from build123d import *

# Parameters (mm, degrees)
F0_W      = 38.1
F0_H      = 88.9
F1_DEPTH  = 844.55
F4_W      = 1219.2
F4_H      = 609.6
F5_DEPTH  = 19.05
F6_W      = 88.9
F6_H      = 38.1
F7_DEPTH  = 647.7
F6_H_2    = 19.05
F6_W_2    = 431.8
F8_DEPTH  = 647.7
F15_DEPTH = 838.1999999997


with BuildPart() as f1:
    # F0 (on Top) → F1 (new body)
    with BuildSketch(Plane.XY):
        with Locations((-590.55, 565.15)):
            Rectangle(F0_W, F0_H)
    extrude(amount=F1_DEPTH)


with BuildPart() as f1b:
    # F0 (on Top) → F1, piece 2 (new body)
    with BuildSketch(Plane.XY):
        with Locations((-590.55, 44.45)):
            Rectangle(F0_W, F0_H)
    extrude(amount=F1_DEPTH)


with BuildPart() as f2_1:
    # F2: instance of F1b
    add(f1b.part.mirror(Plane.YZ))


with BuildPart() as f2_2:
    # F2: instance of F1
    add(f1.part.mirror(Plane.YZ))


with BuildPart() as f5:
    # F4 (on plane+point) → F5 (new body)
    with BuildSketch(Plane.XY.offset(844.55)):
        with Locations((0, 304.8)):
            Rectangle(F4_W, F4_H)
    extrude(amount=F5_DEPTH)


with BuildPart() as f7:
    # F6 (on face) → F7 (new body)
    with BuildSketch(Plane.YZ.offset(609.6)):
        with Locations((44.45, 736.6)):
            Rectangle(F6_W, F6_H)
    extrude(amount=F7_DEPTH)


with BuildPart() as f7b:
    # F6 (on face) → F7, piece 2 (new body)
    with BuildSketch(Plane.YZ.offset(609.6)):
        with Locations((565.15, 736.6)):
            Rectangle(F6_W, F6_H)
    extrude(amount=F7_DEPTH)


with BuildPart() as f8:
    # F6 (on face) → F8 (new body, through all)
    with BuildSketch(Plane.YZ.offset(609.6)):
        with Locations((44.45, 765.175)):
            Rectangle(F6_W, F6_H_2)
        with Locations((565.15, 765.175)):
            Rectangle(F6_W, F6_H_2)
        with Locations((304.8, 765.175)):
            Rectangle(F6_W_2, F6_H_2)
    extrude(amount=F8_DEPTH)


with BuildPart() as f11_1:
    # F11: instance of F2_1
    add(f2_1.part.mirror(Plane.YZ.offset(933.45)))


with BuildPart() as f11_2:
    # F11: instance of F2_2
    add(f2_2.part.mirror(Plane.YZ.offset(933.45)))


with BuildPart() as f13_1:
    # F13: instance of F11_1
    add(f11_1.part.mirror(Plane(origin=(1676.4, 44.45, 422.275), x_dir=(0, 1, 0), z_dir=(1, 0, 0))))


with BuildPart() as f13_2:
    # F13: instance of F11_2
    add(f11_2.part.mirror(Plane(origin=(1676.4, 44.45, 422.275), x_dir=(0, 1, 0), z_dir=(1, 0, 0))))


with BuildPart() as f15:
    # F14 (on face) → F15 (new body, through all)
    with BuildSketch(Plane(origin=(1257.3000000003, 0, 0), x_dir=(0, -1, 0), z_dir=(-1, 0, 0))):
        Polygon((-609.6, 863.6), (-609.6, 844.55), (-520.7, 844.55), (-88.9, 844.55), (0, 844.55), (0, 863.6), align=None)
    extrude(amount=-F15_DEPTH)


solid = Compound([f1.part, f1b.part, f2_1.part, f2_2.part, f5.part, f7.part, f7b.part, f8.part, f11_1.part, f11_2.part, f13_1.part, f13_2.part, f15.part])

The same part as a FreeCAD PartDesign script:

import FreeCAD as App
import Part
import Sketcher
from FreeCAD import Vector
Q = App.Units.Quantity

doc = App.newDocument("Part")
body = doc.addObject("PartDesign::Body", "Body")

sketch1 = body.newObject("Sketcher::SketchObject", "Sketch")
sketch1.AttachmentSupport = (doc.getObject("XY_Plane"), [""])
sketch1.MapMode = "FlatFace"
sketch1.addGeometry(Part.LineSegment(Vector(-610, 610, 0), Vector(-610, 521, 0)), False)
sketch1.addGeometry(Part.LineSegment(Vector(-610, 521, 0), Vector(-572, 521, 0)), False)
sketch1.addGeometry(Part.LineSegment(Vector(-572, 521, 0), Vector(-572, 610, 0)), False)
sketch1.addGeometry(Part.LineSegment(Vector(-572, 610, 0), Vector(-610, 610, 0)), False)
sketch1.addConstraint(Sketcher.Constraint("Coincident", 0, 2, 1, 1))
sketch1.addConstraint(Sketcher.Constraint("Coincident", 1, 2, 2, 1))
sketch1.addConstraint(Sketcher.Constraint("Coincident", 2, 2, 3, 1))
sketch1.addConstraint(Sketcher.Constraint("Coincident", 3, 2, 0, 1))
sketch1.addConstraint(Sketcher.Constraint("Vertical", 0))
sketch1.addConstraint(Sketcher.Constraint("Horizontal", 1))
sketch1.addConstraint(Sketcher.Constraint("Vertical", 2))
sketch1.addConstraint(Sketcher.Constraint("Horizontal", 3))
sketch1.addConstraint(Sketcher.Constraint("DistanceX", 1, 1, 1, 2, Q("1.5 in")))
sketch1.addConstraint(Sketcher.Constraint("DistanceY", 0, 2, 0, 1, Q("3.5 in")))
sketch1.addConstraint(Sketcher.Constraint("DistanceX", 0, 2, -1, 1, Q("24 in")))
sketch1.addConstraint(Sketcher.Constraint("DistanceY", -1, 1, 2, 2, Q("24 in")))
pad1 = body.newObject("PartDesign::Pad", "Pad")
pad1.Profile = sketch1
pad1.Length = Q("33.25 in")
body2 = doc.addObject("PartDesign::Body", "Body001")

sketch2 = body2.newObject("Sketcher::SketchObject", "Sketch001")
sketch2.AttachmentSupport = (doc.getObject("XY_Plane001"), [""])
sketch2.MapMode = "FlatFace"
sketch2.addGeometry(Part.LineSegment(Vector(-610, 89, 0), Vector(-610, 0, 0)), False)
sketch2.addGeometry(Part.LineSegment(Vector(-610, 0, 0), Vector(-572, 0, 0)), False)
sketch2.addGeometry(Part.LineSegment(Vector(-572, 0, 0), Vector(-572, 89, 0)), False)
sketch2.addGeometry(Part.LineSegment(Vector(-572, 89, 0), Vector(-610, 89, 0)), False)
sketch2.addConstraint(Sketcher.Constraint("Coincident", 0, 2, 1, 1))
sketch2.addConstraint(Sketcher.Constraint("Coincident", 1, 2, 2, 1))
sketch2.addConstraint(Sketcher.Constraint("Coincident", 2, 2, 3, 1))
sketch2.addConstraint(Sketcher.Constraint("Coincident", 3, 2, 0, 1))
sketch2.addConstraint(Sketcher.Constraint("Vertical", 0))
sketch2.addConstraint(Sketcher.Constraint("Horizontal", 1))
sketch2.addConstraint(Sketcher.Constraint("Vertical", 2))
sketch2.addConstraint(Sketcher.Constraint("Horizontal", 3))
sketch2.addConstraint(Sketcher.Constraint("PointOnObject", 0, 2, -1))
sketch2.addConstraint(Sketcher.Constraint("DistanceX", 1, 1, 1, 2, Q("1.5 in")))
sketch2.addConstraint(Sketcher.Constraint("DistanceY", 0, 2, 0, 1, Q("3.5 in")))
sketch2.addConstraint(Sketcher.Constraint("DistanceX", 0, 2, -1, 1, Q("24 in")))
pad2 = body2.newObject("PartDesign::Pad", "Pad001")
pad2.Profile = sketch2
pad2.Length = Q("33.25 in")
body3 = doc.addObject("PartDesign::Body", "Body002")
doc.recompute()

mirroring = doc.addObject("Part::Mirroring", "Mirroring")
mirroring.Source = body2
mirroring.Base = Vector(0, 0, 0)
mirroring.Normal = Vector(1, 0, 0)
body3.BaseFeature = mirroring
doc.recompute()
body4 = doc.addObject("PartDesign::Body", "Body003")
doc.recompute()

mirroring2 = doc.addObject("Part::Mirroring", "Mirroring001")
mirroring2.Source = body
mirroring2.Base = Vector(0, 0, 0)
mirroring2.Normal = Vector(1, 0, 0)
body4.BaseFeature = mirroring2
doc.recompute()
body5 = doc.addObject("PartDesign::Body", "Body004")

sketch3 = body5.newObject("Sketcher::SketchObject", "Sketch002")
sketch3.AttachmentSupport = (doc.getObject("XY_Plane004"), [""])
sketch3.MapMode = "FlatFace"
sketch3.AttachmentOffset = App.Placement(Vector(0, 0, 33.25 * 25.4), App.Rotation())
sketch3.addGeometry(Part.LineSegment(Vector(-610, 610, 0), Vector(-610, 0, 0)), False)
sketch3.addGeometry(Part.LineSegment(Vector(-610, 0, 0), Vector(610, 0, 0)), False)
sketch3.addGeometry(Part.LineSegment(Vector(610, 0, 0), Vector(610, 610, 0)), False)
sketch3.addGeometry(Part.LineSegment(Vector(610, 610, 0), Vector(-610, 610, 0)), False)
sketch3.addConstraint(Sketcher.Constraint("Coincident", 0, 2, 1, 1))
sketch3.addConstraint(Sketcher.Constraint("Coincident", 1, 2, 2, 1))
sketch3.addConstraint(Sketcher.Constraint("Coincident", 2, 2, 3, 1))
sketch3.addConstraint(Sketcher.Constraint("Coincident", 3, 2, 0, 1))
sketch3.addConstraint(Sketcher.Constraint("Vertical", 0))
sketch3.addConstraint(Sketcher.Constraint("Horizontal", 1))
sketch3.addConstraint(Sketcher.Constraint("Vertical", 2))
sketch3.addConstraint(Sketcher.Constraint("Horizontal", 3))
sketch3.addConstraint(Sketcher.Constraint("Symmetric", 0, 2, 1, 2, -1, 1))
sketch3.addConstraint(Sketcher.Constraint("DistanceX", 1, 1, 1, 2, Q("48 in")))
sketch3.addConstraint(Sketcher.Constraint("DistanceY", 0, 2, 0, 1, Q("24 in")))
pad3 = body5.newObject("PartDesign::Pad", "Pad002")
pad3.Profile = sketch3
pad3.Length = Q("0.75 in")
body6 = doc.addObject("PartDesign::Body", "Body005")

sketch4 = body6.newObject("Sketcher::SketchObject", "Sketch003")
sketch4.AttachmentSupport = (doc.getObject("YZ_Plane005"), [""])
sketch4.MapMode = "FlatFace"
sketch4.AttachmentOffset = App.Placement(Vector(0, 0, 24 * 25.4), App.Rotation())
sketch4.addGeometry(Part.LineSegment(Vector(0, 756, 0), Vector(0, 718, 0)), False)
sketch4.addGeometry(Part.LineSegment(Vector(0, 718, 0), Vector(89, 718, 0)), False)
sketch4.addGeometry(Part.LineSegment(Vector(89, 718, 0), Vector(89, 756, 0)), False)
sketch4.addGeometry(Part.LineSegment(Vector(89, 756, 0), Vector(0, 756, 0)), False)
sketch4.addConstraint(Sketcher.Constraint("Coincident", 0, 2, 1, 1))
sketch4.addConstraint(Sketcher.Constraint("Coincident", 1, 2, 2, 1))
sketch4.addConstraint(Sketcher.Constraint("Coincident", 2, 2, 3, 1))
sketch4.addConstraint(Sketcher.Constraint("Coincident", 3, 2, 0, 1))
sketch4.addConstraint(Sketcher.Constraint("Vertical", 0))
sketch4.addConstraint(Sketcher.Constraint("Horizontal", 1))
sketch4.addConstraint(Sketcher.Constraint("Vertical", 2))
sketch4.addConstraint(Sketcher.Constraint("Horizontal", 3))
sketch4.addConstraint(Sketcher.Constraint("PointOnObject", 0, 2, -2))
sketch4.addConstraint(Sketcher.Constraint("DistanceX", 1, 1, 1, 2, Q("3.5 in")))
sketch4.addConstraint(Sketcher.Constraint("DistanceY", 0, 2, 0, 1, Q("1.5 in")))
sketch4.addConstraint(Sketcher.Constraint("DistanceY", -1, 1, 0, 2, Q("28.25 in")))
pad4 = body6.newObject("PartDesign::Pad", "Pad003")
pad4.Profile = sketch4
pad4.Length = Q("25.5 in")
body7 = doc.addObject("PartDesign::Body", "Body006")

sketch5 = body7.newObject("Sketcher::SketchObject", "Sketch004")
sketch5.AttachmentSupport = (doc.getObject("YZ_Plane006"), [""])
sketch5.MapMode = "FlatFace"
sketch5.AttachmentOffset = App.Placement(Vector(0, 0, 24 * 25.4), App.Rotation())
sketch5.addGeometry(Part.LineSegment(Vector(521, 756, 0), Vector(521, 718, 0)), False)
sketch5.addGeometry(Part.LineSegment(Vector(521, 718, 0), Vector(610, 718, 0)), False)
sketch5.addGeometry(Part.LineSegment(Vector(610, 718, 0), Vector(610, 756, 0)), False)
sketch5.addGeometry(Part.LineSegment(Vector(610, 756, 0), Vector(521, 756, 0)), False)
sketch5.addConstraint(Sketcher.Constraint("Coincident", 0, 2, 1, 1))
sketch5.addConstraint(Sketcher.Constraint("Coincident", 1, 2, 2, 1))
sketch5.addConstraint(Sketcher.Constraint("Coincident", 2, 2, 3, 1))
sketch5.addConstraint(Sketcher.Constraint("Coincident", 3, 2, 0, 1))
sketch5.addConstraint(Sketcher.Constraint("Vertical", 0))
sketch5.addConstraint(Sketcher.Constraint("Horizontal", 1))
sketch5.addConstraint(Sketcher.Constraint("Vertical", 2))
sketch5.addConstraint(Sketcher.Constraint("Horizontal", 3))
sketch5.addConstraint(Sketcher.Constraint("DistanceX", 1, 1, 1, 2, Q("3.5 in")))
sketch5.addConstraint(Sketcher.Constraint("DistanceY", 0, 2, 0, 1, Q("1.5 in")))
sketch5.addConstraint(Sketcher.Constraint("DistanceX", -1, 1, 1, 2, Q("24 in")))
sketch5.addConstraint(Sketcher.Constraint("DistanceY", -1, 1, 0, 2, Q("28.25 in")))
pad5 = body7.newObject("PartDesign::Pad", "Pad004")
pad5.Profile = sketch5
pad5.Length = Q("25.5 in")
body8 = doc.addObject("PartDesign::Body", "Body007")

sketch6 = body8.newObject("Sketcher::SketchObject", "Sketch005")
sketch6.AttachmentSupport = (doc.getObject("YZ_Plane007"), [""])
sketch6.MapMode = "FlatFace"
sketch6.AttachmentOffset = App.Placement(Vector(0, 0, 24 * 25.4), App.Rotation())
sketch6.addGeometry(Part.LineSegment(Vector(0, 775, 0), Vector(0, 756, 0)), False)
sketch6.addGeometry(Part.LineSegment(Vector(0, 756, 0), Vector(610, 756, 0)), False)
sketch6.addGeometry(Part.LineSegment(Vector(610, 756, 0), Vector(610, 775, 0)), False)
sketch6.addGeometry(Part.LineSegment(Vector(610, 775, 0), Vector(0, 775, 0)), False)
sketch6.addConstraint(Sketcher.Constraint("Coincident", 0, 2, 1, 1))
sketch6.addConstraint(Sketcher.Constraint("Coincident", 1, 2, 2, 1))
sketch6.addConstraint(Sketcher.Constraint("Coincident", 2, 2, 3, 1))
sketch6.addConstraint(Sketcher.Constraint("Coincident", 3, 2, 0, 1))
sketch6.addConstraint(Sketcher.Constraint("Vertical", 0))
sketch6.addConstraint(Sketcher.Constraint("Horizontal", 1))
sketch6.addConstraint(Sketcher.Constraint("Vertical", 2))
sketch6.addConstraint(Sketcher.Constraint("Horizontal", 3))
sketch6.addConstraint(Sketcher.Constraint("PointOnObject", 0, 2, -2))
sketch6.addConstraint(Sketcher.Constraint("DistanceX", 1, 1, 1, 2, Q("24 in")))
sketch6.addConstraint(Sketcher.Constraint("DistanceY", 0, 2, 0, 1, Q("0.75 in")))
sketch6.addConstraint(Sketcher.Constraint("DistanceY", -1, 1, 2, 2, Q("30.5 in")))
pad6 = body8.newObject("PartDesign::Pad", "Pad005")
pad6.Profile = sketch6
pad6.Length = Q("25.5 in")
body9 = doc.addObject("PartDesign::Body", "Body008")
doc.recompute()

mirroring3 = doc.addObject("Part::Mirroring", "Mirroring002")
mirroring3.Source = body3
mirroring3.Base = Vector(933.45, 0, 0)
mirroring3.Normal = Vector(1, 0, 0)
body9.BaseFeature = mirroring3
doc.recompute()
body10 = doc.addObject("PartDesign::Body", "Body009")
doc.recompute()

mirroring4 = doc.addObject("Part::Mirroring", "Mirroring003")
mirroring4.Source = body4
mirroring4.Base = Vector(933.45, 0, 0)
mirroring4.Normal = Vector(1, 0, 0)
body10.BaseFeature = mirroring4
doc.recompute()
body11 = doc.addObject("PartDesign::Body", "Body010")
doc.recompute()

mirroring5 = doc.addObject("Part::Mirroring", "Mirroring004")
mirroring5.Source = body9
mirroring5.Base = Vector(1676.4, 44.45, 422.275)
mirroring5.Normal = Vector(1, 0, 0)
body11.BaseFeature = mirroring5
doc.recompute()
body12 = doc.addObject("PartDesign::Body", "Body011")
doc.recompute()

mirroring6 = doc.addObject("Part::Mirroring", "Mirroring005")
mirroring6.Source = body10
mirroring6.Base = Vector(1676.4, 44.45, 422.275)
mirroring6.Normal = Vector(1, 0, 0)
body12.BaseFeature = mirroring6
doc.recompute()
body13 = doc.addObject("PartDesign::Body", "Body012")

sketch7 = body13.newObject("Sketcher::SketchObject", "Sketch006")
sketch7.AttachmentSupport = (doc.getObject("YZ_Plane012"), [""])
sketch7.MapMode = "FlatFace"
sketch7.AttachmentOffset = App.Placement(Vector(0, 0, 49.5 * 25.4), App.Rotation())
sketch7.addGeometry(Part.LineSegment(Vector(610, 864, 0), Vector(610, 845, 0)), False)
sketch7.addGeometry(Part.LineSegment(Vector(610, 845, 0), Vector(0, 845, 0)), False)
sketch7.addGeometry(Part.LineSegment(Vector(0, 845, 0), Vector(0, 864, 0)), False)
sketch7.addGeometry(Part.LineSegment(Vector(0, 864, 0), Vector(610, 864, 0)), False)
sketch7.addConstraint(Sketcher.Constraint("Coincident", 0, 2, 1, 1))
sketch7.addConstraint(Sketcher.Constraint("Coincident", 1, 2, 2, 1))
sketch7.addConstraint(Sketcher.Constraint("Coincident", 2, 2, 3, 1))
sketch7.addConstraint(Sketcher.Constraint("Coincident", 3, 2, 0, 1))
sketch7.addConstraint(Sketcher.Constraint("Vertical", 0))
sketch7.addConstraint(Sketcher.Constraint("Horizontal", 1))
sketch7.addConstraint(Sketcher.Constraint("Vertical", 2))
sketch7.addConstraint(Sketcher.Constraint("Horizontal", 3))
sketch7.addConstraint(Sketcher.Constraint("PointOnObject", 1, 2, -2))
sketch7.addConstraint(Sketcher.Constraint("DistanceX", 1, 2, 1, 1, Q("24 in")))
sketch7.addConstraint(Sketcher.Constraint("DistanceY", -1, 1, 2, 2, Q("34 in")))
sketch7.addConstraint(Sketcher.Constraint("DistanceY", 0, 2, 0, 1, Q("0.75 in")))
pad7 = body13.newObject("PartDesign::Pad", "Pad006")
pad7.Profile = sketch7
pad7.Length = Q("33 in")
mirroring.Visibility = False
mirroring2.Visibility = False
mirroring3.Visibility = False
mirroring4.Visibility = False
mirroring5.Visibility = False
mirroring6.Visibility = False

doc.recompute()
